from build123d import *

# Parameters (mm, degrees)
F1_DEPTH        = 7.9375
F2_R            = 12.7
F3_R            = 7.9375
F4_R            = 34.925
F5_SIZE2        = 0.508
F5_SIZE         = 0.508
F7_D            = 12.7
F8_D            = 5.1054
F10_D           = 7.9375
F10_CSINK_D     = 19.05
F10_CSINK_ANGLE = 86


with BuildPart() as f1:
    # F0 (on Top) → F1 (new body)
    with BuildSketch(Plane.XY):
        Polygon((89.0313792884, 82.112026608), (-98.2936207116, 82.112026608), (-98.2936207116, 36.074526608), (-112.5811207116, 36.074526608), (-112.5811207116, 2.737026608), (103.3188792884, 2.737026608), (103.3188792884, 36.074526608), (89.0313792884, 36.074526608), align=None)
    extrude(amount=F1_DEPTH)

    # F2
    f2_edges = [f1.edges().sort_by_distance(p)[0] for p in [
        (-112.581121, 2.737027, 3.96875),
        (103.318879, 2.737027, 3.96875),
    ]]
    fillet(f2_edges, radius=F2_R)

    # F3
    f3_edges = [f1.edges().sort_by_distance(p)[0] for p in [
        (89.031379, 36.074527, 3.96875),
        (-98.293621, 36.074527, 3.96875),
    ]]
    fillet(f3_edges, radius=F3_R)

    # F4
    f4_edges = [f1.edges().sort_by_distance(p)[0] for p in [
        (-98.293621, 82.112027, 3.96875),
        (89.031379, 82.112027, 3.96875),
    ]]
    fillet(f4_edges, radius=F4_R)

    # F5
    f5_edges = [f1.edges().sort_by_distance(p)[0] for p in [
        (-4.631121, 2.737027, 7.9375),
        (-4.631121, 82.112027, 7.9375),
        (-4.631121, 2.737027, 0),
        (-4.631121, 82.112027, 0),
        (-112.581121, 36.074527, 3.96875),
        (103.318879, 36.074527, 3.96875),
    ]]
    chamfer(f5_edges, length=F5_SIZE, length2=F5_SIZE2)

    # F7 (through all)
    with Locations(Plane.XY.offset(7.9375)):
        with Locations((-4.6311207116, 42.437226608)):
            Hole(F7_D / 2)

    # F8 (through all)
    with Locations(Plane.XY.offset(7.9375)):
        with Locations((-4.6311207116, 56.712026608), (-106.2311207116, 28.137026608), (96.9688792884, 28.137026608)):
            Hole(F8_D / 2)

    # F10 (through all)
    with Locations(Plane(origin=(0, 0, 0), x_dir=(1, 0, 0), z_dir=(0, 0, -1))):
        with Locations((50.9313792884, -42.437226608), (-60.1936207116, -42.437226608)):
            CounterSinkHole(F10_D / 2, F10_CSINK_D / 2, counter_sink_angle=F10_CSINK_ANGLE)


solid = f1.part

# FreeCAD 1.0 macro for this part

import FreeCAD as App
import Part
import Sketcher
Q = App.Units.Quantity


def edges_at(feature, points):
    """Names of the edges that pass closest to the given points."""
    edges = feature.Shape.Edges
    near = lambda p: min(range(len(edges)), key=lambda i: edges[i].distToShape(Part.Vertex(*p))[0])
    return sorted({f"Edge{near(p) + 1}" for p in points})

doc = App.newDocument("Part")
body = doc.addObject("PartDesign::Body", "Body")

sketch1 = body.newObject("Sketcher::SketchObject", "Sketch")
sketch1.AttachmentSupport = (doc.getObject("XY_Plane"), [""])
sketch1.MapMode = "FlatFace"
sketch1.addGeometry([
    Part.LineSegment(App.Vector(89, 82, 0), App.Vector(-98, 82, 0)),
    Part.LineSegment(App.Vector(-98, 82, 0), App.Vector(-98, 36, 0)),
    Part.LineSegment(App.Vector(-98, 36, 0), App.Vector(-113, 36, 0)),
    Part.LineSegment(App.Vector(-113, 36, 0), App.Vector(-113, 3, 0)),
    Part.LineSegment(App.Vector(-113, 3, 0), App.Vector(103, 3, 0)),
    Part.LineSegment(App.Vector(103, 3, 0), App.Vector(103, 36, 0)),
    Part.LineSegment(App.Vector(103, 36, 0), App.Vector(89, 36, 0)),
    Part.LineSegment(App.Vector(89, 36, 0), App.Vector(89, 82, 0)),
], False)
sketch1.addConstraint([
    Sketcher.Constraint("Coincident", 0, 2, 1, 1),
    Sketcher.Constraint("Coincident", 1, 2, 2, 1),
    Sketcher.Constraint("Coincident", 2, 2, 3, 1),
    Sketcher.Constraint("Coincident", 3, 2, 4, 1),
    Sketcher.Constraint("Coincident", 4, 2, 5, 1),
    Sketcher.Constraint("Coincident", 5, 2, 6, 1),
    Sketcher.Constraint("Coincident", 6, 2, 7, 1),
    Sketcher.Constraint("Coincident", 7, 2, 0, 1),
    Sketcher.Constraint("Horizontal", 0),
    Sketcher.Constraint("Vertical", 1),
    Sketcher.Constraint("Horizontal", 2),
    Sketcher.Constraint("Vertical", 3),
    Sketcher.Constraint("Horizontal", 4),
    Sketcher.Constraint("Vertical", 5),
    Sketcher.Constraint("Horizontal", 6),
    Sketcher.Constraint("Vertical", 7),
    Sketcher.Constraint("Horizontal", 2, 2, 5, 2),
    Sketcher.Constraint("Equal", 2, 6),
    Sketcher.Constraint("DistanceX", 4, 1, 4, 2, Q("8.5 in")),
    Sketcher.Constraint("DistanceX", 0, 2, 0, 1, Q("7.375 in")),
    Sketcher.Constraint("DistanceY", 1, 2, 1, 1, Q("1.8125 in")),
    Sketcher.Constraint("DistanceY", 3, 2, 3, 1, Q("1.3125 in")),
    Sketcher.Constraint("DistanceX", 0, 2, -1, 1, 98.293621),
    Sketcher.Constraint("DistanceY", -1, 1, 0, 2, 82.112027),
])
pad1 = body.newObject("PartDesign::Pad", "Pad")
pad1.Profile = sketch1
pad1.Length = Q("0.3125 in")
doc.recompute()

fillet = body.newObject("PartDesign::Fillet", "Fillet")
fillet.Base = (pad1, edges_at(pad1, [(-112.581, 2.737, 3.969), (103.319, 2.737, 3.969)]))
fillet.Radius = Q("0.5 in")
doc.recompute()

fillet2 = body.newObject("PartDesign::Fillet", "Fillet001")
fillet2.Base = (fillet, edges_at(fillet, [(89.031, 36.075, 3.969), (-98.294, 36.075, 3.969)]))
fillet2.Radius = Q("0.3125 in")
doc.recompute()

fillet3 = body.newObject("PartDesign::Fillet", "Fillet002")
fillet3.Base = (fillet2, edges_at(fillet2, [(-98.294, 82.112, 3.969), (89.031, 82.112, 3.969)]))
fillet3.Radius = Q("1.375 in")
doc.recompute()

chamfer = body.newObject("PartDesign::Chamfer", "Chamfer")
chamfer.Base = (fillet3, edges_at(fillet3, [
    (-4.631, 2.737, 7.938),
    (-4.631, 82.112, 7.938),
    (-4.631, 2.737, 0),
    (-4.631, 82.112, 0),
    (-112.581, 36.075, 3.969),
    (103.319, 36.075, 3.969),
]))
chamfer.ChamferType = "Two distances"
chamfer.Size = Q("0.02 in")
chamfer.Size2 = Q("0.02 in")

sketch2 = body.newObject("Sketcher::SketchObject", "Sketch001")
sketch2.AttachmentSupport = (doc.getObject("XY_Plane"), [""])
sketch2.MapMode = "FlatFace"
sketch2.AttachmentOffset = App.Placement(App.Vector(0, 0, 0.3125 * 25.4), App.Rotation())
sketch2.addGeometry(Part.Circle(App.Vector(-5, 42, 0), App.Vector(0, 0, 1), 6), False)
sketch2.addConstraint([
    Sketcher.Constraint("Diameter", 0, Q("0.5 in")),
    Sketcher.Constraint("DistanceX", 0, 3, -1, 1, 4.631121),
    Sketcher.Constraint("DistanceY", -1, 1, 0, 3, 42.437227),
])
doc.recompute()
hole = body.newObject("PartDesign::Hole", "Hole")
hole.Profile = sketch2
hole.ThreadType = "None"
hole.Diameter = Q("0.5 in")
hole.DepthType = "ThroughAll"

sketch3 = body.newObject("Sketcher::SketchObject", "Sketch002")
sketch3.AttachmentSupport = (doc.getObject("XY_Plane"), [""])
sketch3.MapMode = "FlatFace"
sketch3.AttachmentOffset = App.Placement(App.Vector(0, 0, 0.3125 * 25.4), App.Rotation())
sketch3.addGeometry([
    Part.Circle(App.Vector(-4.6, 56.7, 0), App.Vector(0, 0, 1), 2.6),
    Part.Circle(App.Vector(-106.2, 28.1, 0), App.Vector(0, 0, 1), 2.6),
    Part.Circle(App.Vector(97, 28.1, 0), App.Vector(0, 0, 1), 2.6),
], False)
sketch3.addConstraint([
    Sketcher.Constraint("Equal", 0, 1),
    Sketcher.Constraint("Equal", 1, 2),
    Sketcher.Constraint("Horizontal", 1, 3, 2, 3),
    Sketcher.Constraint("Diameter", 0, Q("0.201 in")),
    Sketcher.Constraint("DistanceX", 1, 3, 0, 3, Q("4 in")),
    Sketcher.Constraint("DistanceX", 0, 3, 2, 3, Q("4 in")),
    Sketcher.Constraint("DistanceY", 1, 3, 0, 3, Q("1.125 in")),
    Sketcher.Constraint("DistanceX", 0, 3, -1, 1, 4.631121),
    Sketcher.Constraint("DistanceY", -1, 1, 0, 3, 56.712027),
])
doc.recompute()
hole2 = body.newObject("PartDesign::Hole", "Hole001")
hole2.Profile = sketch3
hole2.ThreadType = "None"
hole2.Diameter = Q("0.201 in")
hole2.DepthType = "ThroughAll"

sketch4 = body.newObject("Sketcher::SketchObject", "Sketch003")
sketch4.AttachmentSupport = (doc.getObject("XY_Plane"), [""])
sketch4.MapMode = "FlatFace"
sketch4.addGeometry([
    Part.Circle(App.Vector(50.9, 42.4, 0), App.Vector(0, 0, 1), 4),
    Part.Circle(App.Vector(-60.2, 42.4, 0), App.Vector(0, 0, 1), 4),
], False)
sketch4.addConstraint([
    Sketcher.Constraint("Equal", 0, 1),
    Sketcher.Constraint("Horizontal", 0, 3, 1, 3),
    Sketcher.Constraint("Diameter", 0, Q("0.3125 in")),
    Sketcher.Constraint("DistanceX", 1, 3, 0, 3, Q("4.375 in")),
    Sketcher.Constraint("DistanceX", -1, 1, 0, 3, 50.931379),
    Sketcher.Constraint("DistanceY", -1, 1, 0, 3, 42.437227),
])
doc.recompute()
hole3 = body.newObject("PartDesign::Hole", "Hole002")
hole3.Profile = sketch4
hole3.ThreadType = "None"
hole3.Diameter = Q("0.3125 in")
hole3.DepthType = "ThroughAll"
hole3.HoleCutType = "Countersink"
hole3.HoleCutDiameter = Q("0.75 in")
hole3.HoleCutCountersinkAngle = 86
hole3.Reversed = True

doc.recompute()
